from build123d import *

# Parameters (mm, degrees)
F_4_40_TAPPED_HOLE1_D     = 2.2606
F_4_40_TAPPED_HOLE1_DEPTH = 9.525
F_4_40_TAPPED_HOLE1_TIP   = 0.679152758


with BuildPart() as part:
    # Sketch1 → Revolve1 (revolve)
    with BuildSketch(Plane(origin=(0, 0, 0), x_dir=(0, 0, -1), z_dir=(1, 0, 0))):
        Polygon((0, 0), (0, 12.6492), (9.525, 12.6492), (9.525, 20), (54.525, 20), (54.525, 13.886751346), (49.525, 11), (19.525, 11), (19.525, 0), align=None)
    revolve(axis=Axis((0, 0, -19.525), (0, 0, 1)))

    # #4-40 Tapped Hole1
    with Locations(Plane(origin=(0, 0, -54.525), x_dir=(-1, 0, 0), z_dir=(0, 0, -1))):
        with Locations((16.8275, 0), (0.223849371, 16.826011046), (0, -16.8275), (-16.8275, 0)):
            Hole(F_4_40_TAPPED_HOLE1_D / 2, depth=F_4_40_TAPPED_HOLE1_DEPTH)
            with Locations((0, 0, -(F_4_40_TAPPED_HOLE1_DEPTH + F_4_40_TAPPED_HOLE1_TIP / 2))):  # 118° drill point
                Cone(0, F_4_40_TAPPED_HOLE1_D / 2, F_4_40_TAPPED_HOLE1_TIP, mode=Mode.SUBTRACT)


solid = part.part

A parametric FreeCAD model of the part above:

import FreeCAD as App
import Part
import Sketcher

V = App.Vector
Q = App.Units.Quantity

doc = App.newDocument("Part")
body = doc.addObject("PartDesign::Body", "Body")

sketch1 = doc.addObject("Sketcher::SketchObject", "Sketch")
body.addObject(sketch1)
sketch1.AttachmentSupport = (doc.YZ_Plane, [""])
sketch1.MapMode = "FlatFace"
sketch1.addGeometry(Part.LineSegment(V(12.6492, 0, 0), V(0, 0, 0)), False)
sketch1.addGeometry(Part.LineSegment(V(0, 0, 0), V(0, -19.525, 0)), False)
sketch1.addGeometry(Part.LineSegment(V(0, -19.525, 0), V(11, -19.525, 0)), False)
sketch1.addGeometry(Part.LineSegment(V(11, -19.525, 0), V(11, -49.525, 0)), False)
sketch1.addGeometry(Part.LineSegment(V(11, -49.525, 0), V(13.886751, -54.525, 0)), False)
sketch1.addGeometry(Part.LineSegment(V(13.886751, -54.525, 0), V(20, -54.525, 0)), False)
sketch1.addGeometry(Part.LineSegment(V(20, -54.525, 0), V(20, -9.525, 0)), False)
sketch1.addGeometry(Part.LineSegment(V(20, -9.525, 0), V(12.6492, -9.525, 0)), False)
sketch1.addGeometry(Part.LineSegment(V(12.6492, -9.525, 0), V(12.6492, 0, 0)), False)
sketch1.addConstraint(Sketcher.Constraint("Coincident", 0, 2, 1, 1))
sketch1.addConstraint(Sketcher.Constraint("Coincident", 1, 2, 2, 1))
sketch1.addConstraint(Sketcher.Constraint("Coincident", 2, 2, 3, 1))
sketch1.addConstraint(Sketcher.Constraint("Coincident", 3, 2, 4, 1))
sketch1.addConstraint(Sketcher.Constraint("Coincident", 4, 2, 5, 1))
sketch1.addConstraint(Sketcher.Constraint("Coincident", 5, 2, 6, 1))
sketch1.addConstraint(Sketcher.Constraint("Coincident", 6, 2, 7, 1))
sketch1.addConstraint(Sketcher.Constraint("Coincident", 7, 2, 8, 1))
sketch1.addConstraint(Sketcher.Constraint("Coincident", 8, 2, 0, 1))
sketch1.addConstraint(Sketcher.Constraint("Horizontal", 0))
sketch1.addConstraint(Sketcher.Constraint("Vertical", 1))
sketch1.addConstraint(Sketcher.Constraint("Horizontal", 2))
sketch1.addConstraint(Sketcher.Constraint("Vertical", 3))
sketch1.addConstraint(Sketcher.Constraint("Horizontal", 5))
sketch1.addConstraint(Sketcher.Constraint("Vertical", 6))
sketch1.addConstraint(Sketcher.Constraint("Horizontal", 7))
sketch1.addConstraint(Sketcher.Constraint("Vertical", 8))
sketch1.addConstraint(Sketcher.Constraint("Coincident", 0, 2, -1, 1))
sketch1.addConstraint(Sketcher.Constraint("DistanceX", 2, 1, 2, 2, Q("11 mm")))
sketch1.addConstraint(Sketcher.Constraint("DistanceY", 3, 2, 3, 1, Q("30 mm")))
sketch1.addConstraint(Sketcher.Constraint("DistanceY", 6, 1, 6, 2, Q("45 mm")))
sketch1.addConstraint(Sketcher.Constraint("Angle", 4, Q("-60 deg")))
sketch1.addConstraint(Sketcher.Constraint("DistanceX", -1, 1, 5, 2, Q("20 mm")))
sketch1.addConstraint(Sketcher.Constraint("DistanceY", 4, 2, 3, 2, Q("5 mm")))
sketch1.addConstraint(Sketcher.Constraint("DistanceY", 1, 2, 1, 1, Q("19.525 mm")))
sketch1.addConstraint(Sketcher.Constraint("DistanceX", 0, 2, 0, 1, Q("12.6492 mm")))
revolution = doc.addObject("PartDesign::Revolution", "Revolution")
body.addObject(revolution)
revolution.Profile = sketch1
revolution.ReferenceAxis = (sketch1, ["V_Axis"])
revolution.Angle = 360

sketch2 = doc.addObject("Sketcher::SketchObject", "Sketch001")
body.addObject(sketch2)
sketch2.AttachmentSupport = (doc.XY_Plane, [""])
sketch2.MapMode = "FlatFace"
sketch2.AttachmentOffset = App.Placement(V(0, 0, -54.525), App.Rotation())
sketch2.addGeometry(Part.Circle(V(-16.8275, 0, 0), V(0, 0, 1), 1.1303), False)
sketch2.addGeometry(Part.Circle(V(-0.223849, 16.826011, 0), V(0, 0, 1), 1.1303), False)
sketch2.addGeometry(Part.Circle(V(0, -16.8275, 0), V(0, 0, 1), 1.1303), False)
sketch2.addGeometry(Part.Circle(V(16.8275, 0, 0), V(0, 0, 1), 1.1303), False)
sketch2.addConstraint(Sketcher.Constraint("Equal", 0, 1))
sketch2.addConstraint(Sketcher.Constraint("Equal", 1, 2))
sketch2.addConstraint(Sketcher.Constraint("Equal", 2, 3))
sketch2.addConstraint(Sketcher.Constraint("Symmetric", 0, 3, 3, 3, -1, 1))
sketch2.addConstraint(Sketcher.Constraint("PointOnObject", 0, 3, -1))
sketch2.addConstraint(Sketcher.Constraint("PointOnObject", 2, 3, -2))
sketch2.addConstraint(Sketcher.Constraint("Diameter", 0, Q("2.2606 mm")))
sketch2.addConstraint(Sketcher.Constraint("DistanceX", 0, 3, 3, 3, Q("33.655 mm")))
sketch2.addConstraint(Sketcher.Constraint("DistanceY", 2, 3, -1, 1, Q("16.8275 mm")))
sketch2.addConstraint(Sketcher.Constraint("DistanceX", 1, 3, -1, 1, Q("0.223849 mm")))
sketch2.addConstraint(Sketcher.Constraint("DistanceY", -1, 1, 1, 3, Q("16.826011 mm")))
doc.recompute()
hole = doc.addObject("PartDesign::Hole", "Hole")
body.addObject(hole)
hole.Profile = sketch2
hole.ThreadType = "None"
hole.Diameter = 2.2606
hole.DepthType = "Dimension"
hole.Depth = 9.525
hole.DrillPoint = "Angled"
hole.DrillPointAngle = 118
hole.Reversed = True

doc.recompute()
